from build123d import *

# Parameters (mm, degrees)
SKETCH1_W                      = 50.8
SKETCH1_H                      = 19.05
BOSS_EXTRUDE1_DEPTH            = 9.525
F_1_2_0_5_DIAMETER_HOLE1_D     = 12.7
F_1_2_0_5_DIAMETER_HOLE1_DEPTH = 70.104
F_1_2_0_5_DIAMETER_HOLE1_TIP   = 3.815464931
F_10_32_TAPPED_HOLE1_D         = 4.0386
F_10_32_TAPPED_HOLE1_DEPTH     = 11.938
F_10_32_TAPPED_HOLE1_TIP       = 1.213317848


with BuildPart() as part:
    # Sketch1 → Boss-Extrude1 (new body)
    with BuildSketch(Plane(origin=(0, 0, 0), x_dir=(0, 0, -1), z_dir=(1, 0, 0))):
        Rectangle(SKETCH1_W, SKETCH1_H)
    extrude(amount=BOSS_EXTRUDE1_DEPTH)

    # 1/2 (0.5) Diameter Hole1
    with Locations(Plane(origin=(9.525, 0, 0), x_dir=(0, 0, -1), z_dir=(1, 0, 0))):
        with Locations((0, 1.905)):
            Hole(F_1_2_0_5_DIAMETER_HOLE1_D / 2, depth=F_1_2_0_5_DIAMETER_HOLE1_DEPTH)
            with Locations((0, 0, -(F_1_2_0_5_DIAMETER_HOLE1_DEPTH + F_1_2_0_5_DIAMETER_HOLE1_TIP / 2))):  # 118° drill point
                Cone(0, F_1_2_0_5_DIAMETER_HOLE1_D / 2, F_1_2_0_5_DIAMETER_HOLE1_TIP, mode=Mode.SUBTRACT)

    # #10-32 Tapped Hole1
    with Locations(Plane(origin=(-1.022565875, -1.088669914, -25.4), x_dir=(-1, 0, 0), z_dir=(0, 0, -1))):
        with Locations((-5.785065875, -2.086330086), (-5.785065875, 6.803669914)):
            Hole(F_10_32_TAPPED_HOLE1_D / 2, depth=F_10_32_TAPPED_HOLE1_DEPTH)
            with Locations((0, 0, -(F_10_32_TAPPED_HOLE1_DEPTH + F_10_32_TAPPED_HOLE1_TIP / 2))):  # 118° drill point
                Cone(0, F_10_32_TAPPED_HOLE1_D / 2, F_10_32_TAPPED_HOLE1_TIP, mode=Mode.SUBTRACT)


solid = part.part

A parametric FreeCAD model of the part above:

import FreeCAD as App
import Part
import Sketcher
Q = App.Units.Quantity

doc = App.newDocument("Part")
body = doc.addObject("PartDesign::Body", "Body")

sketch1 = body.newObject("Sketcher::SketchObject", "Sketch")
sketch1.AttachmentSupport = (doc.getObject("YZ_Plane"), [""])
sketch1.MapMode = "FlatFace"
sketch1.addGeometry([
    Part.LineSegment(App.Vector(10, 25, 0), App.Vector(-10, 25, 0)),
    Part.LineSegment(App.Vector(-10, 25, 0), App.Vector(-10, -25, 0)),
    Part.LineSegment(App.Vector(-10, -25, 0), App.Vector(10, -25, 0)),
    Part.LineSegment(App.Vector(10, -25, 0), App.Vector(10, 25, 0)),
], False)
sketch1.addConstraint([
    Sketcher.Constraint("Coincident", 0, 2, 1, 1),
    Sketcher.Constraint("Coincident", 1, 2, 2, 1),
    Sketcher.Constraint("Coincident", 2, 2, 3, 1),
    Sketcher.Constraint("Coincident", 3, 2, 0, 1),
    Sketcher.Constraint("Horizontal", 0),
    Sketcher.Constraint("Vertical", 1),
    Sketcher.Constraint("Horizontal", 2),
    Sketcher.Constraint("Vertical", 3),
    Sketcher.Constraint("Symmetric", 0, 2, 2, 2, -1, 1),
    Sketcher.Constraint("DistanceY", 1, 2, 1, 1, Q("2 in")),
    Sketcher.Constraint("DistanceX", 0, 2, 0, 1, Q("0.75 in")),
])
pad1 = body.newObject("PartDesign::Pad", "Pad")
pad1.Profile = sketch1
pad1.Length = Q("0.375 in")

sketch2 = body.newObject("Sketcher::SketchObject", "Sketch001")
sketch2.AttachmentSupport = (doc.getObject("YZ_Plane"), [""])
sketch2.MapMode = "FlatFace"
sketch2.AttachmentOffset = App.Placement(App.Vector(0, 0, 0.375 * 25.4), App.Rotation())
sketch2.addGeometry(Part.Circle(App.Vector(2, 0, 0), App.Vector(0, 0, 1), 6), False)
sketch2.addConstraint([
    Sketcher.Constraint("PointOnObject", 0, 3, -1),
    Sketcher.Constraint("Diameter", 0, Q("0.5 in")),
    Sketcher.Constraint("DistanceX", -1, 1, 0, 3, Q("0.075 in")),
])
doc.recompute()
hole = body.newObject("PartDesign::Hole", "Hole")
hole.Profile = sketch2
hole.ThreadType = "None"
hole.Diameter = Q("0.5 in")
hole.DepthType = "Dimension"
hole.Depth = Q("2.76 in")
hole.DrillPoint = "Angled"
hole.DrillPointAngle = 118

sketch3 = body.newObject("Sketcher::SketchObject", "Sketch002")
sketch3.AttachmentSupport = (doc.getObject("XY_Plane"), [""])
sketch3.MapMode = "FlatFace"
sketch3.AttachmentOffset = App.Placement(App.Vector(0, 0, -1 * 25.4), App.Rotation())
sketch3.addGeometry([
    Part.Circle(App.Vector(4.8, -3.2, 0), App.Vector(0, 0, 1), 2),
    Part.Circle(App.Vector(4.8, 5.7, 0), App.Vector(0, 0, 1), 2),
], False)
sketch3.addConstraint([
    Sketcher.Constraint("Equal", 0, 1),
    Sketcher.Constraint("Vertical", 0, 3, 1, 3),
    Sketcher.Constraint("Diameter", 0, Q("0.159 in")),
    Sketcher.Constraint("DistanceY", 0, 3, 1, 3, Q("0.35 in")),
    Sketcher.Constraint("DistanceX", -1, 1, 0, 3, Q("0.1875 in")),
    Sketcher.Constraint("DistanceY", 0, 3, -1, 1, Q("0.125 in")),
])
doc.recompute()
hole2 = body.newObject("PartDesign::Hole", "Hole001")
hole2.Profile = sketch3
hole2.ThreadType = "None"
hole2.Diameter = Q("0.159 in")
hole2.DepthType = "Dimension"
hole2.Depth = Q("0.47 in")
hole2.DrillPoint = "Angled"
hole2.DrillPointAngle = 118
hole2.Reversed = True

doc.recompute()
